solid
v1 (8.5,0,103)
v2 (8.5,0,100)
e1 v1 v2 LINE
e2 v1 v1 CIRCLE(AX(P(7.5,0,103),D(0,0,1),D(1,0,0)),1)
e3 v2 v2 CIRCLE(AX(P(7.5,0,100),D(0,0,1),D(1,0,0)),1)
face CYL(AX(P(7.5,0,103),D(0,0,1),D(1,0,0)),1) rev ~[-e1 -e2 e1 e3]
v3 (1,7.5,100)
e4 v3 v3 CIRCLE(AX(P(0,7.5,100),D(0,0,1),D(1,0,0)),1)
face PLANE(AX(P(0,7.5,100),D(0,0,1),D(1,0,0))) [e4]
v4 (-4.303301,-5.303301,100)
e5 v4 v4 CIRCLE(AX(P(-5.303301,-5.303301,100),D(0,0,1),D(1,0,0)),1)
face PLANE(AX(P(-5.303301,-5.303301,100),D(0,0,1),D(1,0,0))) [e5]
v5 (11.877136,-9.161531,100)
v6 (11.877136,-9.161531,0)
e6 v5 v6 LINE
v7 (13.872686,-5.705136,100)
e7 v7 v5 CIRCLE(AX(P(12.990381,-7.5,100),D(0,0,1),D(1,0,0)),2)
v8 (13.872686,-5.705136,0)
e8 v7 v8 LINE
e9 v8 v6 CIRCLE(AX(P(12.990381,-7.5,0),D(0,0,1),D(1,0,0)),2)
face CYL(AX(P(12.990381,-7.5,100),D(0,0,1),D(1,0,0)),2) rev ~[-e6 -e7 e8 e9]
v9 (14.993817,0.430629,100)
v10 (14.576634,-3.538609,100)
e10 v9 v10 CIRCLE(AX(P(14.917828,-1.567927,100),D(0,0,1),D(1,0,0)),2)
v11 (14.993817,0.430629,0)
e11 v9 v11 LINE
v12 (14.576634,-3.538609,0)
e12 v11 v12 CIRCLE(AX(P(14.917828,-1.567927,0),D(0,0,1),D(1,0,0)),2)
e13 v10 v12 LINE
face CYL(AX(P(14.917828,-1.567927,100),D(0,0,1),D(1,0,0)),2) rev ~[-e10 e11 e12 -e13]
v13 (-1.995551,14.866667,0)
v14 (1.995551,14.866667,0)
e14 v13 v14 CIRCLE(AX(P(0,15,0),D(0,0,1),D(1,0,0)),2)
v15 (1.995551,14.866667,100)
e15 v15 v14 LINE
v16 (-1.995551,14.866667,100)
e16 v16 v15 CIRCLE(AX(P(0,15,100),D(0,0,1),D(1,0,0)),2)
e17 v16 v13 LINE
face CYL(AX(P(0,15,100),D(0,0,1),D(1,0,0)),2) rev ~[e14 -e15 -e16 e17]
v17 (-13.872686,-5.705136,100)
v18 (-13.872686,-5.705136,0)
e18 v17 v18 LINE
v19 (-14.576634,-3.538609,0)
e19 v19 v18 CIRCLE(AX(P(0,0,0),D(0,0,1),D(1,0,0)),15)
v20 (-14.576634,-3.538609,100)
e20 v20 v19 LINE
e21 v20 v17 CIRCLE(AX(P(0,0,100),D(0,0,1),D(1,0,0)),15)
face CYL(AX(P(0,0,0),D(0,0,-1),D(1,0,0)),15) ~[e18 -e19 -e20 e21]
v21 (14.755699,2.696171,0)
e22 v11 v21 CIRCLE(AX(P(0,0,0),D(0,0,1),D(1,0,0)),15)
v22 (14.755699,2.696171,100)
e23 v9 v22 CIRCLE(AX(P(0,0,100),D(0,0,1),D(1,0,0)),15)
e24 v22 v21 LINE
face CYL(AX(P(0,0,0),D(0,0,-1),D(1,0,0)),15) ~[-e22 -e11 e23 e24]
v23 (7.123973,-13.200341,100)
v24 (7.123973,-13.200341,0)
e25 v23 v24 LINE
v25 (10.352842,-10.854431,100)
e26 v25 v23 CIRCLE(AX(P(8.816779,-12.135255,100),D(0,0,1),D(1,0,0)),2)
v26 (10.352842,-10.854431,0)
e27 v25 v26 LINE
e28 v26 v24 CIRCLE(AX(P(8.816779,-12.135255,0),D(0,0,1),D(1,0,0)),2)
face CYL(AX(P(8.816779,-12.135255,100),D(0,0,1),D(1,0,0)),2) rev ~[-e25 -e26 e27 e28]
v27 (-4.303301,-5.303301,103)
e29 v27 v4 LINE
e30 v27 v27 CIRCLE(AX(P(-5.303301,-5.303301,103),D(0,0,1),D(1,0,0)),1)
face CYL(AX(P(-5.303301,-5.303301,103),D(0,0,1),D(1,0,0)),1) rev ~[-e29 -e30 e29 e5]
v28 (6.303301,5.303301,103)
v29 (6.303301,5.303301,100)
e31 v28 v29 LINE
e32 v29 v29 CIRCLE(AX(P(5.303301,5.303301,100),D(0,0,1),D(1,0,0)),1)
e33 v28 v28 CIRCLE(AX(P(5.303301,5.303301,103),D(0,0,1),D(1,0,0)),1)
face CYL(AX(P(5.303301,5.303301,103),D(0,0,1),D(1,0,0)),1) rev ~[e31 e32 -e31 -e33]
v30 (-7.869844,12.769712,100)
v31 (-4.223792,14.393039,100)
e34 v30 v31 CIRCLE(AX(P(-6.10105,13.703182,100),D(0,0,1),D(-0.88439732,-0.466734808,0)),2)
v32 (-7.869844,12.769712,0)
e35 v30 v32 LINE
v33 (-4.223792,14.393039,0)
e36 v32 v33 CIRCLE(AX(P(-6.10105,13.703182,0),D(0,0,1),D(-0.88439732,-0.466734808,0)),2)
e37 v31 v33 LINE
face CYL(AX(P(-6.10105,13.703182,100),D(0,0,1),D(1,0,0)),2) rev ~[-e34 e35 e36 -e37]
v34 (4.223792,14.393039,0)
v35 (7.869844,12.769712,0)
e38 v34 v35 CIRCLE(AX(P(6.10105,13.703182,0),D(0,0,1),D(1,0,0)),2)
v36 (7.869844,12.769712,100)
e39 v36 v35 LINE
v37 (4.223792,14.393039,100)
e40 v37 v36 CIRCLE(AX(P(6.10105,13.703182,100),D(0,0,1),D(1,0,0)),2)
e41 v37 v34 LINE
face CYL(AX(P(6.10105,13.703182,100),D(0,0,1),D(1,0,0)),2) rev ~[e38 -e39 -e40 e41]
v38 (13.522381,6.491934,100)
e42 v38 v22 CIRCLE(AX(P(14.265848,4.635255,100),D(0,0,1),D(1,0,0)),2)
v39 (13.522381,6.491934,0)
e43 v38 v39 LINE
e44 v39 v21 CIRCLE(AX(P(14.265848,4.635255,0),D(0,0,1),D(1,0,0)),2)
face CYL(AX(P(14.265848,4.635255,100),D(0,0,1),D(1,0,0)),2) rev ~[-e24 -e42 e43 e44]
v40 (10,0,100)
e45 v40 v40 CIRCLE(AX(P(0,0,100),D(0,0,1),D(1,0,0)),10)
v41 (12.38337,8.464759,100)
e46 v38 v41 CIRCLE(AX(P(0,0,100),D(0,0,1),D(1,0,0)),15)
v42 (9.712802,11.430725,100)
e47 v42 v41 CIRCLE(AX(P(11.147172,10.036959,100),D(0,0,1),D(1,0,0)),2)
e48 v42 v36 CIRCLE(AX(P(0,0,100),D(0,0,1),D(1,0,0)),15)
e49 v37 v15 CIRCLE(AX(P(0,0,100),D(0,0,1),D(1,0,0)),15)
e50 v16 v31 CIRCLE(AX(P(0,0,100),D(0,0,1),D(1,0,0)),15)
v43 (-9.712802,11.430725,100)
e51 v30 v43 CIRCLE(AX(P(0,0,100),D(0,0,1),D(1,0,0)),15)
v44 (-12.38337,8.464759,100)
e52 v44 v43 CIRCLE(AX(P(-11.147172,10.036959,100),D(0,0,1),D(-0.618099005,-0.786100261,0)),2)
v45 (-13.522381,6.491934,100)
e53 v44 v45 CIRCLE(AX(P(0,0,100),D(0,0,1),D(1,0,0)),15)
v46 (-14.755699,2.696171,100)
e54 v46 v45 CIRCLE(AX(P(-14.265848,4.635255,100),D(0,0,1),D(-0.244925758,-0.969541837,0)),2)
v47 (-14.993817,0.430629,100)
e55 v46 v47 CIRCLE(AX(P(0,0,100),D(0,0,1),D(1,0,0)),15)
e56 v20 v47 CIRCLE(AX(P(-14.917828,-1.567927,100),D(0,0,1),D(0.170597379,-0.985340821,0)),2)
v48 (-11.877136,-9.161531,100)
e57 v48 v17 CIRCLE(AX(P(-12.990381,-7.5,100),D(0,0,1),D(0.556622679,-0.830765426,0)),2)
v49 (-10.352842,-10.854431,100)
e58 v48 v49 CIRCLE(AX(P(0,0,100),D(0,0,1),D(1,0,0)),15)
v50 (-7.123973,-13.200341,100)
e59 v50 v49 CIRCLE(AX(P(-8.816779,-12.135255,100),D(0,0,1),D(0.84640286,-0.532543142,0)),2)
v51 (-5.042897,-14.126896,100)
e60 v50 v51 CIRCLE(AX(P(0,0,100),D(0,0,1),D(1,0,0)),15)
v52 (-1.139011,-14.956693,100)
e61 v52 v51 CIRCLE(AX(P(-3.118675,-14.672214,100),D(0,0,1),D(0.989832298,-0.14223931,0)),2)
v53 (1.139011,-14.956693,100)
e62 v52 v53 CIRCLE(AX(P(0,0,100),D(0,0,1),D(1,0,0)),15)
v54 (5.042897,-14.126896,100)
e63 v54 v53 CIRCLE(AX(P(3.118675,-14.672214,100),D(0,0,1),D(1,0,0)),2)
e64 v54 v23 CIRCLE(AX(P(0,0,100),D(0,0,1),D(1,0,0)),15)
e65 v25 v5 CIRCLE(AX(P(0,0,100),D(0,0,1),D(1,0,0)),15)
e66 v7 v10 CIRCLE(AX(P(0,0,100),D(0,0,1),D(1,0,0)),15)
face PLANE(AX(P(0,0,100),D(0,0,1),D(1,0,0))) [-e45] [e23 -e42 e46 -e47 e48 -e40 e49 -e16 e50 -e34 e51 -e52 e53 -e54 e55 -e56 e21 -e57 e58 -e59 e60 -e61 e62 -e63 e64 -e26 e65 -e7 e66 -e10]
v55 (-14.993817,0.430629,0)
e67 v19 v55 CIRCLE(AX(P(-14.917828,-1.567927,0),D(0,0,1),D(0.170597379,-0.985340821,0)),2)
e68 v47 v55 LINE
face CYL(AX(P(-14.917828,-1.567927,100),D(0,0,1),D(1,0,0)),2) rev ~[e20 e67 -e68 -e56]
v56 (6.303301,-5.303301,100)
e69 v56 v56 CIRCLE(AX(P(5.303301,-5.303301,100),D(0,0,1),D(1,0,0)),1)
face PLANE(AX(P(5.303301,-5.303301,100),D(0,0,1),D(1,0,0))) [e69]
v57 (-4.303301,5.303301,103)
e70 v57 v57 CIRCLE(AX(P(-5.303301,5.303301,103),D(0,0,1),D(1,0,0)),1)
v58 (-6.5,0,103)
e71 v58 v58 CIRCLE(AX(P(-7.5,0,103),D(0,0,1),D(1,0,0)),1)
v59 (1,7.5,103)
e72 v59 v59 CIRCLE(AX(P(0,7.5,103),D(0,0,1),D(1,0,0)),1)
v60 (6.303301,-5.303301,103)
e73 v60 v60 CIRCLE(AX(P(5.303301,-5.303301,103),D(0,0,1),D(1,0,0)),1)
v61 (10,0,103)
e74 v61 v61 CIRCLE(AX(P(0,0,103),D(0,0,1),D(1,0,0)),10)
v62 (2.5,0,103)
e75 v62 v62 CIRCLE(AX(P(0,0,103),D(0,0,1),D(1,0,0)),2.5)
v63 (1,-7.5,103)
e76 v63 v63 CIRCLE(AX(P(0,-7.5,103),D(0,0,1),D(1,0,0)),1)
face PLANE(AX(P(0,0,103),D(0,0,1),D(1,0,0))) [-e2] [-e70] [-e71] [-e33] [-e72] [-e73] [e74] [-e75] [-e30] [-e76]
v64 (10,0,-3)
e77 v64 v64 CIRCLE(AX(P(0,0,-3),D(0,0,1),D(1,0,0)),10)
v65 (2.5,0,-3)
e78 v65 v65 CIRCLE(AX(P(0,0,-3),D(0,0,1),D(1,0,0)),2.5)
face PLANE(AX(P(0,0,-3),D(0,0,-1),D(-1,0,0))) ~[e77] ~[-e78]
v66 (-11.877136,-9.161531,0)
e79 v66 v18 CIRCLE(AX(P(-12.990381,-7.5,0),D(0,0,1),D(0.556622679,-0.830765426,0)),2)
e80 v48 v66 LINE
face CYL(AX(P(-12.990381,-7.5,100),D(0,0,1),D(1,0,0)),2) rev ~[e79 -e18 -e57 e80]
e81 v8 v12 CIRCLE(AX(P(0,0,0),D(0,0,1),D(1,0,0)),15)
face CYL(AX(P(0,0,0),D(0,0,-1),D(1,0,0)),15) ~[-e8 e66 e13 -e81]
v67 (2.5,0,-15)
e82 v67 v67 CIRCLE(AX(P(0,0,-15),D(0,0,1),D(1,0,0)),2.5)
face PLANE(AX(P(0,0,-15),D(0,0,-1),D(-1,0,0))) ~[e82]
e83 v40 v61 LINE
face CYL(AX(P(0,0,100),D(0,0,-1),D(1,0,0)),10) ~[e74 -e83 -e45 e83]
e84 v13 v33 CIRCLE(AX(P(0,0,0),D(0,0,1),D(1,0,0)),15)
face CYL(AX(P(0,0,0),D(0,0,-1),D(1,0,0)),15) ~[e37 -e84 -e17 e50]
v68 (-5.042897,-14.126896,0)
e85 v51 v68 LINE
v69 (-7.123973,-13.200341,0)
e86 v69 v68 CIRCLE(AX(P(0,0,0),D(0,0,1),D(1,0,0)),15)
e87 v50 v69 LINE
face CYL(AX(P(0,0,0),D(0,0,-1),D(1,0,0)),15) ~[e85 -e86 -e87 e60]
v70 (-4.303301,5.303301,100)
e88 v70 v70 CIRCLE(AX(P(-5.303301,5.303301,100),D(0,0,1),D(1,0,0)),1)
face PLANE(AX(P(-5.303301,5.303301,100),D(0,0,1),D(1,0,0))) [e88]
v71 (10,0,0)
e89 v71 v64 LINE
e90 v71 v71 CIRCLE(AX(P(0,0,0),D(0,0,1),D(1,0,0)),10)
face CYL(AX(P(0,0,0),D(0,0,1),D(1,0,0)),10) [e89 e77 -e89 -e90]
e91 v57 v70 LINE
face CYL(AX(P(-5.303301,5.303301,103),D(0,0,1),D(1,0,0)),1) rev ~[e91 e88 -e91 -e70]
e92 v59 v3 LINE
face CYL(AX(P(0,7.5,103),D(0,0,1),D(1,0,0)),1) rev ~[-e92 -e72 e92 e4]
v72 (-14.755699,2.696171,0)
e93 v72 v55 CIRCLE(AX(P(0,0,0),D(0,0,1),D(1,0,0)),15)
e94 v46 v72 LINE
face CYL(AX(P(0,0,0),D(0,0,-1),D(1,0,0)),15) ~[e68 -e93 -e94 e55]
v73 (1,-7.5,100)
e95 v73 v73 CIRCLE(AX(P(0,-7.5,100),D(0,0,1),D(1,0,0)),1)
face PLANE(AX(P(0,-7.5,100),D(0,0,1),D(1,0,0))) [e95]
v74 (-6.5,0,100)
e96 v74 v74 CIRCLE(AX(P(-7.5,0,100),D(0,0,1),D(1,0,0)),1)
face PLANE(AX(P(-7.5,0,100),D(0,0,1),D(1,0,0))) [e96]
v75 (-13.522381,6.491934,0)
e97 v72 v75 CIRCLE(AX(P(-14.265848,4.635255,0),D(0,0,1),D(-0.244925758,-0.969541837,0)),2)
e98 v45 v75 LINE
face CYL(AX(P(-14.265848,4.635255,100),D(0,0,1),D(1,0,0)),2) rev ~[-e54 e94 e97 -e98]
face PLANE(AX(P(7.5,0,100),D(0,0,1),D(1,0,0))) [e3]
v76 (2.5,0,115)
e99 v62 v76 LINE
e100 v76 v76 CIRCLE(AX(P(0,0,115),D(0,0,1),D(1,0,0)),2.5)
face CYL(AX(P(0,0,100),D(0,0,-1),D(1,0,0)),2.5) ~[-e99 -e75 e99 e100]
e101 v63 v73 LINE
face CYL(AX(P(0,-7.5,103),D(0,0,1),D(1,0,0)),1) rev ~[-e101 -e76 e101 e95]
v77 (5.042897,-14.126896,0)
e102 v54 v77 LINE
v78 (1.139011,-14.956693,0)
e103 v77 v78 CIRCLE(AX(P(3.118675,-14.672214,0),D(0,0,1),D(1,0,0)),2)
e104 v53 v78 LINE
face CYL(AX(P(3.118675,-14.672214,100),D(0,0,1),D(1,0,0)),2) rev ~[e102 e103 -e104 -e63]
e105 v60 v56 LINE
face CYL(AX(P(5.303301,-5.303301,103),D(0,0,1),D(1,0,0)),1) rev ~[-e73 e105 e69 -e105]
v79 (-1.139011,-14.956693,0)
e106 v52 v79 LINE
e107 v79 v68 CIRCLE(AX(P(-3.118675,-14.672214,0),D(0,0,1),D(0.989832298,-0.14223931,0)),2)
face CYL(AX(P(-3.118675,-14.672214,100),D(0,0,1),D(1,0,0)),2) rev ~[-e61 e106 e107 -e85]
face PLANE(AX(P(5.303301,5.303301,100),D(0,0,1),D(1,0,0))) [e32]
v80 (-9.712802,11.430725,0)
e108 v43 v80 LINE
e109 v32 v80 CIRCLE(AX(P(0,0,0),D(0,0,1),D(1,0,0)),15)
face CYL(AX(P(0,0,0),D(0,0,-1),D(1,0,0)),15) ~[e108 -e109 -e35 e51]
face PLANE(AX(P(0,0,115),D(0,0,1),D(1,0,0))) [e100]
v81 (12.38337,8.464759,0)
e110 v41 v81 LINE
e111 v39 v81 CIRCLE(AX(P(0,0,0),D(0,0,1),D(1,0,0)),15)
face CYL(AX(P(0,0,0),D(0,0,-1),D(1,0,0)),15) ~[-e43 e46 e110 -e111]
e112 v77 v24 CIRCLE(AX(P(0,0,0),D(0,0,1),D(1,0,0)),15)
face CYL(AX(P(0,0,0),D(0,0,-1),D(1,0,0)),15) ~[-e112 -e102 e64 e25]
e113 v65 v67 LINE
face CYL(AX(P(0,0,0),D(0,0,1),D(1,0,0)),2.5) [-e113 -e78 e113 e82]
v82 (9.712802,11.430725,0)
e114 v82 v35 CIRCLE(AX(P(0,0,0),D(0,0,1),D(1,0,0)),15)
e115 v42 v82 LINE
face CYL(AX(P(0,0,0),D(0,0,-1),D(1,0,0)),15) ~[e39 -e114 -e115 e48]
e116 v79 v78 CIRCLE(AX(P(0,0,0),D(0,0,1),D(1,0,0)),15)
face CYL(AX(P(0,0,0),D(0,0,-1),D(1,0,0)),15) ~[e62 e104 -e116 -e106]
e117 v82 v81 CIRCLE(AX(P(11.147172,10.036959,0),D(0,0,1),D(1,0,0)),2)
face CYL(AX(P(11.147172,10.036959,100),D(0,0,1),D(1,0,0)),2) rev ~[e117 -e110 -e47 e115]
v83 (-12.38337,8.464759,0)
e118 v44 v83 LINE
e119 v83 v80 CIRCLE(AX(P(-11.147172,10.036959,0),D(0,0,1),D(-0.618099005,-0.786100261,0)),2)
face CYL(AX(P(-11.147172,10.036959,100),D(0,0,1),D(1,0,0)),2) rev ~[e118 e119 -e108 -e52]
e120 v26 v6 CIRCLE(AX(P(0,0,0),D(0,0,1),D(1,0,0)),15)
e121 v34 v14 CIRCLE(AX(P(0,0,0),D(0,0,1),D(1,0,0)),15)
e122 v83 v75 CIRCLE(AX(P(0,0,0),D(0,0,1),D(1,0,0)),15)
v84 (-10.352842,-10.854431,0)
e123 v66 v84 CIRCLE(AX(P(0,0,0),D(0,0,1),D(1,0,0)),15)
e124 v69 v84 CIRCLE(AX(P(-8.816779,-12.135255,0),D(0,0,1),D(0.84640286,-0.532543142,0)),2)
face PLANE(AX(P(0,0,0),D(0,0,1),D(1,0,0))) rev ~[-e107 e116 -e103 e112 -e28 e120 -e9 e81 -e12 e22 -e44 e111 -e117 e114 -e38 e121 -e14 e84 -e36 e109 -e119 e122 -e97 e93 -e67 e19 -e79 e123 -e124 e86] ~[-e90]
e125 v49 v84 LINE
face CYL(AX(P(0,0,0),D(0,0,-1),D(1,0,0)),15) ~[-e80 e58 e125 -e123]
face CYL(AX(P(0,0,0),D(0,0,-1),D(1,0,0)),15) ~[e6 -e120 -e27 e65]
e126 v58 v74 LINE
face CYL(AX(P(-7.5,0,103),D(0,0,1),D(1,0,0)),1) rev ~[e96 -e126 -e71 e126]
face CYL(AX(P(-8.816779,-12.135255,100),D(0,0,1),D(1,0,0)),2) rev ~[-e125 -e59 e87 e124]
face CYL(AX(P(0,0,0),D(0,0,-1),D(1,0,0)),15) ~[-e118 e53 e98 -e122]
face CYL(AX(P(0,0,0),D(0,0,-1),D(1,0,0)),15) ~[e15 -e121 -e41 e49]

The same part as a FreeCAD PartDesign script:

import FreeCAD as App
import Part
import Sketcher
from FreeCAD import Vector

doc = App.newDocument("Part")
body = doc.addObject("PartDesign::Body", "Body")

sketch1 = body.newObject("Sketcher::SketchObject", "Sketch")
sketch1.AttachmentSupport = (doc.getObject("XY_Plane"), [""])
sketch1.MapMode = "FlatFace"
sketch1.addGeometry(Part.Circle(Vector(0, 0, 0), Vector(0, 0, 1), 15), False)
sketch1.addConstraint([
    Sketcher.Constraint("Coincident", 0, 3, -1, 1),
    Sketcher.Constraint("Diameter", 0, 30.0),
])
pad1 = body.newObject("PartDesign::Pad", "Pad")
pad1.Profile = sketch1
pad1.Length = 100

sketch2 = body.newObject("Sketcher::SketchObject", "Sketch001")
sketch2.AttachmentSupport = (doc.getObject("XY_Plane"), [""])
sketch2.MapMode = "FlatFace"
sketch2.AttachmentOffset = App.Placement(Vector(0, 0, 100), App.Rotation())
sketch2.addGeometry(Part.Circle(Vector(0, 0, 0), Vector(0, 0, 1), 2.5), False)
sketch2.addConstraint([
    Sketcher.Constraint("Coincident", 0, 3, -1, 1),
    Sketcher.Constraint("Diameter", 0, 5.0),
])
pad2 = body.newObject("PartDesign::Pad", "Pad001")
pad2.Profile = sketch2
pad2.Length = 15

sketch3 = body.newObject("Sketcher::SketchObject", "Sketch002")
sketch3.AttachmentSupport = (doc.getObject("XY_Plane"), [""])
sketch3.MapMode = "FlatFace"
sketch3.AttachmentOffset = App.Placement(Vector(0, 0, 100), App.Rotation())
sketch3.addGeometry([
    Part.Circle(Vector(0, 0, 0), Vector(0, 0, 1), 10),
    Part.Circle(Vector(0, 0, 0), Vector(0, 0, 1), 2.5),
], False)
sketch3.addConstraint([
    Sketcher.Constraint("Coincident", 0, 3, -1, 1),
    Sketcher.Constraint("Coincident", 1, 3, -1, 1),
    Sketcher.Constraint("Diameter", 0, 20.0),
    Sketcher.Constraint("Diameter", 1, 5.0),
])
pad3 = body.newObject("PartDesign::Pad", "Pad002")
pad3.Profile = sketch3
pad3.Length = 3
doc.recompute()

datumplane = body.newObject("PartDesign::Plane", "DatumPlane")
datumplane.AttachmentSupport = (doc.getObject("XY_Plane"), [""])
datumplane.MapMode = "FlatFace"
datumplane.AttachmentOffset = App.Placement(Vector(0, 0, 50), App.Rotation())
mirrored = body.newObject("PartDesign::Mirrored", "Mirrored")
mirrored.Originals = [pad2, pad3]
mirrored.MirrorPlane = (datumplane, [""])
body.Tip = mirrored

sketch4 = body.newObject("Sketcher::SketchObject", "Sketch003")
sketch4.AttachmentSupport = (doc.getObject("XY_Plane"), [""])
sketch4.MapMode = "FlatFace"
sketch4.AttachmentOffset = App.Placement(Vector(0, 0, 103), App.Rotation())
sketch4.addGeometry([
    Part.Circle(Vector(0, 7.5, 0), Vector(0, 0, 1), 1),
    Part.Circle(Vector(5.3, 5.3, 0), Vector(0, 0, 1), 1),
    Part.Circle(Vector(7.5, 0, 0), Vector(0, 0, 1), 1),
    Part.Circle(Vector(5.3, -5.3, 0), Vector(0, 0, 1), 1),
    Part.Circle(Vector(0, -7.5, 0), Vector(0, 0, 1), 1),
    Part.Circle(Vector(-5.3, -5.3, 0), Vector(0, 0, 1), 1),
    Part.Circle(Vector(-7.5, 0, 0), Vector(0, 0, 1), 1),
    Part.Circle(Vector(-5.3, 5.3, 0), Vector(0, 0, 1), 1),
], False)
sketch4.addConstraint([
    Sketcher.Constraint("Equal", 0, 1),
    Sketcher.Constraint("Equal", 1, 2),
    Sketcher.Constraint("Equal", 2, 3),
    Sketcher.Constraint("Equal", 3, 4),
    Sketcher.Constraint("Equal", 4, 5),
    Sketcher.Constraint("Equal", 5, 6),
    Sketcher.Constraint("Equal", 6, 7),
    Sketcher.Constraint("Symmetric", 0, 3, 4, 3, -1, 1),
    Sketcher.Constraint("Symmetric", 1, 3, 5, 3, -1, 1),
    Sketcher.Constraint("Symmetric", 2, 3, 6, 3, -1, 1),
    Sketcher.Constraint("Symmetric", 3, 3, 7, 3, -1, 1),
    Sketcher.Constraint("Symmetric", 3, 3, 5, 3, -2),
    Sketcher.Constraint("PointOnObject", 0, 3, -2),
    Sketcher.Constraint("PointOnObject", 2, 3, -1),
    Sketcher.Constraint("Diameter", 0, 2.0),
    Sketcher.Constraint("DistanceY", 4, 3, 0, 3, 15.0),
    Sketcher.Constraint("DistanceX", -1, 1, 2, 3, 7.5),
    Sketcher.Constraint("DistanceX", -1, 1, 1, 3, 5.303301),
    Sketcher.Constraint("DistanceY", -1, 1, 1, 3, 5.303301),
])
pocket1 = body.newObject("PartDesign::Pocket", "Pocket")
pocket1.Profile = sketch4
pocket1.Length = 3

sketch5 = body.newObject("Sketcher::SketchObject", "Sketch004")
sketch5.AttachmentSupport = (doc.getObject("XY_Plane"), [""])
sketch5.MapMode = "FlatFace"
sketch5.AttachmentOffset = App.Placement(Vector(0, 0, 100), App.Rotation())
sketch5.addGeometry([
    Part.Circle(Vector(0, 15, 0), Vector(0, 0, 1), 2),
    Part.Circle(Vector(6.1, 13.7, 0), Vector(0, 0, 1), 2),
    Part.Circle(Vector(11.1, 10, 0), Vector(0, 0, 1), 2),
    Part.Circle(Vector(14.3, 4.6, 0), Vector(0, 0, 1), 2),
    Part.Circle(Vector(14.9, -1.6, 0), Vector(0, 0, 1), 2),
    Part.Circle(Vector(13, -7.5, 0), Vector(0, 0, 1), 2),
    Part.Circle(Vector(8.8, -12.1, 0), Vector(0, 0, 1), 2),
    Part.Circle(Vector(3.1, -14.7, 0), Vector(0, 0, 1), 2),
    Part.Circle(Vector(-3.1, -14.7, 0), Vector(0, 0, 1), 2),
    Part.Circle(Vector(-8.8, -12.1, 0), Vector(0, 0, 1), 2),
    Part.Circle(Vector(-13, -7.5, 0), Vector(0, 0, 1), 2),
    Part.Circle(Vector(-14.9, -1.6, 0), Vector(0, 0, 1), 2),
    Part.Circle(Vector(-14.3, 4.6, 0), Vector(0, 0, 1), 2),
    Part.Circle(Vector(-11.1, 10, 0), Vector(0, 0, 1), 2),
    Part.Circle(Vector(-6.1, 13.7, 0), Vector(0, 0, 1), 2),
], False)
sketch5.addConstraint([
    Sketcher.Constraint("Equal", 0, 1),
    Sketcher.Constraint("Equal", 1, 2),
    Sketcher.Constraint("Equal", 2, 3),
    Sketcher.Constraint("Equal", 3, 4),
    Sketcher.Constraint("Equal", 4, 5),
    Sketcher.Constraint("Equal", 5, 6),
    Sketcher.Constraint("Equal", 6, 7),
    Sketcher.Constraint("Equal", 7, 8),
    Sketcher.Constraint("Equal", 8, 9),
    Sketcher.Constraint("Equal", 9, 10),
    Sketcher.Constraint("Equal", 10, 11),
    Sketcher.Constraint("Equal", 11, 12),
    Sketcher.Constraint("Equal", 12, 13),
    Sketcher.Constraint("Equal", 13, 14),
    Sketcher.Constraint("Symmetric", 7, 3, 8, 3, -2),
    Sketcher.Constraint("Symmetric", 6, 3, 9, 3, -2),
    Sketcher.Constraint("Symmetric", 5, 3, 10, 3, -2),
    Sketcher.Constraint("Symmetric", 4, 3, 11, 3, -2),
    Sketcher.Constraint("Symmetric", 3, 3, 12, 3, -2),
    Sketcher.Constraint("Symmetric", 2, 3, 13, 3, -2),
    Sketcher.Constraint("Symmetric", 1, 3, 14, 3, -2),
    Sketcher.Constraint("PointOnObject", 0, 3, -2),
    Sketcher.Constraint("Diameter", 0, 4.0),
    Sketcher.Constraint("DistanceY", -1, 1, 0, 3, 15.0),
    Sketcher.Constraint("DistanceY", 5, 3, -1, 1, 7.5),
    Sketcher.Constraint("DistanceX", 1, 3, 3, 3, 8.164798),
    Sketcher.Constraint("DistanceX", 14, 3, 1, 3, 12.202099),
    Sketcher.Constraint("DistanceY", -1, 1, 1, 3, 13.703182),
    Sketcher.Constraint("DistanceY", -1, 1, 2, 3, 10.036959),
    Sketcher.Constraint("DistanceX", -1, 1, 4, 3, 14.917828),
    Sketcher.Constraint("DistanceX", -1, 1, 5, 3, 12.990381),
    Sketcher.Constraint("DistanceX", -1, 1, 6, 3, 8.816779),
    Sketcher.Constraint("DistanceY", 4, 3, 3, 3, 6.203182),
    Sketcher.Constraint("DistanceY", 4, 3, 1, 3, 15.271109),
    Sketcher.Constraint("DistanceX", 2, 3, 5, 3, 1.843209),
    Sketcher.Constraint("DistanceY", 6, 3, 3, 3, 16.77051),
    Sketcher.Constraint("DistanceY", 7, 3, 6, 3, 2.536959),
    Sketcher.Constraint("DistanceX", 8, 3, 7, 3, 6.237351),
])
pocket2 = body.newObject("PartDesign::Pocket", "Pocket001")
pocket2.Profile = sketch5
pocket2.Type = "ThroughAll"

doc.recompute()
